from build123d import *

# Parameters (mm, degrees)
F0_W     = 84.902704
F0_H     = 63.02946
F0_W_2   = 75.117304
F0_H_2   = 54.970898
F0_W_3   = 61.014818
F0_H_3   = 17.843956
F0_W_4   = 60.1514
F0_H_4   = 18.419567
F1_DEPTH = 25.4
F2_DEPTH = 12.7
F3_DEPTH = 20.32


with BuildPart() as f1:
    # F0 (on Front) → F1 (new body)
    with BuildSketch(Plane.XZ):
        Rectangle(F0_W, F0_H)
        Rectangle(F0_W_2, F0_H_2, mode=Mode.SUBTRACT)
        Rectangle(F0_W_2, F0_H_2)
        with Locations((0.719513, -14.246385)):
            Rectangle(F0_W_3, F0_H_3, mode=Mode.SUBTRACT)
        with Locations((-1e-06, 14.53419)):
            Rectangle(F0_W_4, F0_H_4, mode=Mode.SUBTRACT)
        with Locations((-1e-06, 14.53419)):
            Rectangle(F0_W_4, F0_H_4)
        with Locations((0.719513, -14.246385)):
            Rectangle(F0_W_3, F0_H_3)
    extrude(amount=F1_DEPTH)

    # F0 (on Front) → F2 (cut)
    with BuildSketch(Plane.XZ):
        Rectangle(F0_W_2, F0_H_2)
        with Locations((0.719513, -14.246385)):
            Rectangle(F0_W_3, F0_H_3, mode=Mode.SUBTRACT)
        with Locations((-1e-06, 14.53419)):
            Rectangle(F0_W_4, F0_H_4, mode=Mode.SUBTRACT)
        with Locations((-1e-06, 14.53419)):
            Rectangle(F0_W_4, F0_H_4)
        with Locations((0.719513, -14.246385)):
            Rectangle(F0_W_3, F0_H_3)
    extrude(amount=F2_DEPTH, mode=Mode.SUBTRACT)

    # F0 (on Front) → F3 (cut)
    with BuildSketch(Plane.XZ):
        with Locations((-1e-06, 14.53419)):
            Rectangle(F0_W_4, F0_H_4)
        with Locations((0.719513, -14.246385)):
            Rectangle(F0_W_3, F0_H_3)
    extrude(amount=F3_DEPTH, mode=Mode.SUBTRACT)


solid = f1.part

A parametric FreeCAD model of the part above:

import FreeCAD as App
import Part
import Sketcher
Q = App.Units.Quantity


def add_polygon(sketch, points):
    """Adds a closed chain of lines whose ends are joined by coincident constraints."""
    first, n = sketch.GeometryCount, len(points)
    for a, b in zip(points, points[1:] + points[:1]):
        sketch.addGeometry(Part.LineSegment(App.Vector(*a, 0), App.Vector(*b, 0)), False)
    for i in range(n):
        sketch.addConstraint(Sketcher.Constraint("Coincident", first + i, 2, first + (i + 1) % n, 1))

doc = App.newDocument("Part")
body = doc.addObject("PartDesign::Body", "Body")

sketch1 = body.newObject("Sketcher::SketchObject", "Sketch")
sketch1.AttachmentSupport = (doc.getObject("XZ_Plane"), [""])
sketch1.MapMode = "FlatFace"
add_polygon(sketch1, [(-42.451352, 31.51473), (-42.451352, -31.51473), (42.451352, -31.51473), (42.451352, 31.51473)])
sketch1.addConstraint([
    Sketcher.Constraint("Vertical", 0),
    Sketcher.Constraint("Horizontal", 1),
    Sketcher.Constraint("Vertical", 2),
    Sketcher.Constraint("Horizontal", 3),
    Sketcher.Constraint("Symmetric", 0, 2, 2, 2, -1, 1),
    Sketcher.Constraint("DistanceY", 0, 2, 0, 1, 63.02946),
    Sketcher.Constraint("DistanceX", 1, 1, 1, 2, 84.902704),
])
pad1 = body.newObject("PartDesign::Pad", "Pad")
pad1.Profile = sketch1
pad1.Length = Q("1 in")

sketch2 = body.newObject("Sketcher::SketchObject", "Sketch001")
sketch2.AttachmentSupport = (doc.getObject("XZ_Plane"), [""])
sketch2.MapMode = "FlatFace"
add_polygon(sketch2, [(-37.558652, 27.485449), (-37.558652, -27.485449), (37.558652, -27.485449), (37.558652, 27.485449)])
sketch2.addConstraint([
    Sketcher.Constraint("Vertical", 0),
    Sketcher.Constraint("Horizontal", 1),
    Sketcher.Constraint("Vertical", 2),
    Sketcher.Constraint("Horizontal", 3),
    Sketcher.Constraint("Symmetric", 0, 2, 2, 2, -1, 1),
    Sketcher.Constraint("DistanceX", 1, 1, 1, 2, 75.117304),
    Sketcher.Constraint("DistanceY", 0, 2, 0, 1, 54.970898),
])
pocket1 = body.newObject("PartDesign::Pocket", "Pocket")
pocket1.Profile = sketch2
pocket1.Length = Q("0.5 in")
pocket1.Reversed = True

sketch3 = body.newObject("Sketcher::SketchObject", "Sketch002")
sketch3.AttachmentSupport = (doc.getObject("XZ_Plane"), [""])
sketch3.MapMode = "FlatFace"
add_polygon(sketch3, [(-30.075701, 23.743973), (-30.075701, 5.324407), (30.075699, 5.324407), (30.075699, 23.743973)])
add_polygon(sketch3, [(-29.787896, -5.324407), (-29.787896, -23.168363), (31.226922, -23.168363), (31.226922, -5.324407)])
sketch3.addConstraint([
    Sketcher.Constraint("Vertical", 0),
    Sketcher.Constraint("Horizontal", 1),
    Sketcher.Constraint("Vertical", 2),
    Sketcher.Constraint("Horizontal", 3),
    Sketcher.Constraint("Vertical", 4),
    Sketcher.Constraint("Horizontal", 5),
    Sketcher.Constraint("Vertical", 6),
    Sketcher.Constraint("Horizontal", 7),
    Sketcher.Constraint("DistanceX", 1, 1, 1, 2, 60.1514),
    Sketcher.Constraint("DistanceX", 0, 2, -1, 1, 30.075701),
    Sketcher.Constraint("DistanceX", 5, 1, 5, 2, 61.014818),
    Sketcher.Constraint("DistanceY", 0, 2, 0, 1, 18.419567),
    Sketcher.Constraint("DistanceY", 4, 2, 4, 1, 17.843956),
    Sketcher.Constraint("DistanceX", -1, 1, 5, 2, 31.226922),
    Sketcher.Constraint("DistanceY", 4, 2, 0, 2, 28.49277),
    Sketcher.Constraint("DistanceY", -1, 1, 0, 2, 5.324407),
])
pocket2 = body.newObject("PartDesign::Pocket", "Pocket001")
pocket2.Profile = sketch3
pocket2.Length = Q("0.8 in")
pocket2.Reversed = True

doc.recompute()
